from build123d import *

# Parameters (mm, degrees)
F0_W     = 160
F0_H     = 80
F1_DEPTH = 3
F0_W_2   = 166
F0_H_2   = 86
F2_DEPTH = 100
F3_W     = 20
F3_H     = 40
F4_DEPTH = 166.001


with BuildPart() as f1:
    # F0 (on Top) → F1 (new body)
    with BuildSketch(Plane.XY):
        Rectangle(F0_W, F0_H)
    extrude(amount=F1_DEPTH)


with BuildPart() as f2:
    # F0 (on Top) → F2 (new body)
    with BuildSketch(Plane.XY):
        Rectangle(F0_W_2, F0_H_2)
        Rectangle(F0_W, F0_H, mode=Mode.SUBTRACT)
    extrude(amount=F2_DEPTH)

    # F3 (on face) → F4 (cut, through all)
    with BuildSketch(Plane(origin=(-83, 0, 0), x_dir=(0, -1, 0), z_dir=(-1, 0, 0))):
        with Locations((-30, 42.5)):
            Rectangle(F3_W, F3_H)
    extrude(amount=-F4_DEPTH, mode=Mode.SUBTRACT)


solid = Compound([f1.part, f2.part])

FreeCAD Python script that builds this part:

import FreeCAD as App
import Part
import Sketcher
Q = App.Units.Quantity


def add_polygon(sketch, points):
    """Adds a closed chain of lines whose ends are joined by coincident constraints."""
    first, n = sketch.GeometryCount, len(points)
    for a, b in zip(points, points[1:] + points[:1]):
        sketch.addGeometry(Part.LineSegment(App.Vector(*a, 0), App.Vector(*b, 0)), False)
    for i in range(n):
        sketch.addConstraint(Sketcher.Constraint("Coincident", first + i, 2, first + (i + 1) % n, 1))

doc = App.newDocument("Part")
body = doc.addObject("PartDesign::Body", "Body")

# Sketch on XY plane
sketch1 = doc.addObject("Sketcher::SketchObject", "Sketch")
body.addObject(sketch1)
sketch1.AttachmentSupport = (doc.XY_Plane, [""])
sketch1.MapMode = "FlatFace"
add_polygon(sketch1, [(-80, 40), (-80, -40), (80, -40), (80, 40)])  # lines 0-3
sketch1.addConstraint([
    Sketcher.Constraint("Vertical", 0),
    Sketcher.Constraint("Horizontal", 1),
    Sketcher.Constraint("Vertical", 2),
    Sketcher.Constraint("Horizontal", 3),
    Sketcher.Constraint("Symmetric", 0, 2, 2, 2, -1, 1),
    Sketcher.Constraint("DistanceX", 1, 1, 1, 2, Q("160 mm")),
    Sketcher.Constraint("DistanceY", 0, 2, 0, 1, Q("80 mm")),
])
pad1 = doc.addObject("PartDesign::Pad", "Pad")
body.addObject(pad1)
pad1.Profile = sketch1
pad1.Length = 3
body2 = doc.addObject("PartDesign::Body", "Body001")

# Sketch on XY plane
sketch2 = doc.addObject("Sketcher::SketchObject", "Sketch001")
body2.addObject(sketch2)
sketch2.AttachmentSupport = (doc.getObject("XY_Plane001"), [""])
sketch2.MapMode = "FlatFace"
add_polygon(sketch2, [(-83, 43), (-83, -43), (83, -43), (83, 43)])  # lines 0-3
add_polygon(sketch2, [(80, -40), (-80, -40), (-80, 40), (80, 40)])  # lines 4-7
sketch2.addConstraint([
    Sketcher.Constraint("Vertical", 0),
    Sketcher.Constraint("Horizontal", 1),
    Sketcher.Constraint("Vertical", 2),
    Sketcher.Constraint("Horizontal", 3),
    Sketcher.Constraint("Horizontal", 4),
    Sketcher.Constraint("Vertical", 5),
    Sketcher.Constraint("Horizontal", 6),
    Sketcher.Constraint("Vertical", 7),
    Sketcher.Constraint("Symmetric", 0, 2, 2, 2, -1, 1),
    Sketcher.Constraint("Symmetric", 4, 2, 6, 2, -1, 1),
    Sketcher.Constraint("DistanceX", 1, 1, 1, 2, Q("166 mm")),
    Sketcher.Constraint("DistanceX", 4, 2, 4, 1, Q("160 mm")),
    Sketcher.Constraint("DistanceY", 0, 2, 0, 1, Q("86 mm")),
    Sketcher.Constraint("DistanceY", 5, 1, 5, 2, Q("80 mm")),
])
pad2 = doc.addObject("PartDesign::Pad", "Pad001")
body2.addObject(pad2)
pad2.Profile = sketch2
pad2.Length = 100

# Sketch on YZ plane
sketch3 = doc.addObject("Sketcher::SketchObject", "Sketch002")
body2.addObject(sketch3)
sketch3.AttachmentSupport = (doc.getObject("YZ_Plane001"), [""])
sketch3.MapMode = "FlatFace"
sketch3.AttachmentOffset = App.Placement(App.Vector(0, 0, -83), App.Rotation())
add_polygon(sketch3, [(40, 62.5), (40, 22.5), (20, 22.5), (20, 62.5)])  # lines 0-3
sketch3.addConstraint([
    Sketcher.Constraint("Vertical", 0),
    Sketcher.Constraint("Horizontal", 1),
    Sketcher.Constraint("Vertical", 2),
    Sketcher.Constraint("Horizontal", 3),
    Sketcher.Constraint("DistanceX", 1, 2, 1, 1, Q("20 mm")),
    Sketcher.Constraint("DistanceY", 0, 2, 0, 1, Q("40 mm")),
    Sketcher.Constraint("DistanceX", -1, 1, 0, 2, Q("40 mm")),
    Sketcher.Constraint("DistanceY", -1, 1, 0, 2, Q("22.5 mm")),
])
pocket1 = doc.addObject("PartDesign::Pocket", "Pocket")
body2.addObject(pocket1)
pocket1.Profile = sketch3
pocket1.Type = "ThroughAll"
pocket1.Reversed = True

doc.recompute()
